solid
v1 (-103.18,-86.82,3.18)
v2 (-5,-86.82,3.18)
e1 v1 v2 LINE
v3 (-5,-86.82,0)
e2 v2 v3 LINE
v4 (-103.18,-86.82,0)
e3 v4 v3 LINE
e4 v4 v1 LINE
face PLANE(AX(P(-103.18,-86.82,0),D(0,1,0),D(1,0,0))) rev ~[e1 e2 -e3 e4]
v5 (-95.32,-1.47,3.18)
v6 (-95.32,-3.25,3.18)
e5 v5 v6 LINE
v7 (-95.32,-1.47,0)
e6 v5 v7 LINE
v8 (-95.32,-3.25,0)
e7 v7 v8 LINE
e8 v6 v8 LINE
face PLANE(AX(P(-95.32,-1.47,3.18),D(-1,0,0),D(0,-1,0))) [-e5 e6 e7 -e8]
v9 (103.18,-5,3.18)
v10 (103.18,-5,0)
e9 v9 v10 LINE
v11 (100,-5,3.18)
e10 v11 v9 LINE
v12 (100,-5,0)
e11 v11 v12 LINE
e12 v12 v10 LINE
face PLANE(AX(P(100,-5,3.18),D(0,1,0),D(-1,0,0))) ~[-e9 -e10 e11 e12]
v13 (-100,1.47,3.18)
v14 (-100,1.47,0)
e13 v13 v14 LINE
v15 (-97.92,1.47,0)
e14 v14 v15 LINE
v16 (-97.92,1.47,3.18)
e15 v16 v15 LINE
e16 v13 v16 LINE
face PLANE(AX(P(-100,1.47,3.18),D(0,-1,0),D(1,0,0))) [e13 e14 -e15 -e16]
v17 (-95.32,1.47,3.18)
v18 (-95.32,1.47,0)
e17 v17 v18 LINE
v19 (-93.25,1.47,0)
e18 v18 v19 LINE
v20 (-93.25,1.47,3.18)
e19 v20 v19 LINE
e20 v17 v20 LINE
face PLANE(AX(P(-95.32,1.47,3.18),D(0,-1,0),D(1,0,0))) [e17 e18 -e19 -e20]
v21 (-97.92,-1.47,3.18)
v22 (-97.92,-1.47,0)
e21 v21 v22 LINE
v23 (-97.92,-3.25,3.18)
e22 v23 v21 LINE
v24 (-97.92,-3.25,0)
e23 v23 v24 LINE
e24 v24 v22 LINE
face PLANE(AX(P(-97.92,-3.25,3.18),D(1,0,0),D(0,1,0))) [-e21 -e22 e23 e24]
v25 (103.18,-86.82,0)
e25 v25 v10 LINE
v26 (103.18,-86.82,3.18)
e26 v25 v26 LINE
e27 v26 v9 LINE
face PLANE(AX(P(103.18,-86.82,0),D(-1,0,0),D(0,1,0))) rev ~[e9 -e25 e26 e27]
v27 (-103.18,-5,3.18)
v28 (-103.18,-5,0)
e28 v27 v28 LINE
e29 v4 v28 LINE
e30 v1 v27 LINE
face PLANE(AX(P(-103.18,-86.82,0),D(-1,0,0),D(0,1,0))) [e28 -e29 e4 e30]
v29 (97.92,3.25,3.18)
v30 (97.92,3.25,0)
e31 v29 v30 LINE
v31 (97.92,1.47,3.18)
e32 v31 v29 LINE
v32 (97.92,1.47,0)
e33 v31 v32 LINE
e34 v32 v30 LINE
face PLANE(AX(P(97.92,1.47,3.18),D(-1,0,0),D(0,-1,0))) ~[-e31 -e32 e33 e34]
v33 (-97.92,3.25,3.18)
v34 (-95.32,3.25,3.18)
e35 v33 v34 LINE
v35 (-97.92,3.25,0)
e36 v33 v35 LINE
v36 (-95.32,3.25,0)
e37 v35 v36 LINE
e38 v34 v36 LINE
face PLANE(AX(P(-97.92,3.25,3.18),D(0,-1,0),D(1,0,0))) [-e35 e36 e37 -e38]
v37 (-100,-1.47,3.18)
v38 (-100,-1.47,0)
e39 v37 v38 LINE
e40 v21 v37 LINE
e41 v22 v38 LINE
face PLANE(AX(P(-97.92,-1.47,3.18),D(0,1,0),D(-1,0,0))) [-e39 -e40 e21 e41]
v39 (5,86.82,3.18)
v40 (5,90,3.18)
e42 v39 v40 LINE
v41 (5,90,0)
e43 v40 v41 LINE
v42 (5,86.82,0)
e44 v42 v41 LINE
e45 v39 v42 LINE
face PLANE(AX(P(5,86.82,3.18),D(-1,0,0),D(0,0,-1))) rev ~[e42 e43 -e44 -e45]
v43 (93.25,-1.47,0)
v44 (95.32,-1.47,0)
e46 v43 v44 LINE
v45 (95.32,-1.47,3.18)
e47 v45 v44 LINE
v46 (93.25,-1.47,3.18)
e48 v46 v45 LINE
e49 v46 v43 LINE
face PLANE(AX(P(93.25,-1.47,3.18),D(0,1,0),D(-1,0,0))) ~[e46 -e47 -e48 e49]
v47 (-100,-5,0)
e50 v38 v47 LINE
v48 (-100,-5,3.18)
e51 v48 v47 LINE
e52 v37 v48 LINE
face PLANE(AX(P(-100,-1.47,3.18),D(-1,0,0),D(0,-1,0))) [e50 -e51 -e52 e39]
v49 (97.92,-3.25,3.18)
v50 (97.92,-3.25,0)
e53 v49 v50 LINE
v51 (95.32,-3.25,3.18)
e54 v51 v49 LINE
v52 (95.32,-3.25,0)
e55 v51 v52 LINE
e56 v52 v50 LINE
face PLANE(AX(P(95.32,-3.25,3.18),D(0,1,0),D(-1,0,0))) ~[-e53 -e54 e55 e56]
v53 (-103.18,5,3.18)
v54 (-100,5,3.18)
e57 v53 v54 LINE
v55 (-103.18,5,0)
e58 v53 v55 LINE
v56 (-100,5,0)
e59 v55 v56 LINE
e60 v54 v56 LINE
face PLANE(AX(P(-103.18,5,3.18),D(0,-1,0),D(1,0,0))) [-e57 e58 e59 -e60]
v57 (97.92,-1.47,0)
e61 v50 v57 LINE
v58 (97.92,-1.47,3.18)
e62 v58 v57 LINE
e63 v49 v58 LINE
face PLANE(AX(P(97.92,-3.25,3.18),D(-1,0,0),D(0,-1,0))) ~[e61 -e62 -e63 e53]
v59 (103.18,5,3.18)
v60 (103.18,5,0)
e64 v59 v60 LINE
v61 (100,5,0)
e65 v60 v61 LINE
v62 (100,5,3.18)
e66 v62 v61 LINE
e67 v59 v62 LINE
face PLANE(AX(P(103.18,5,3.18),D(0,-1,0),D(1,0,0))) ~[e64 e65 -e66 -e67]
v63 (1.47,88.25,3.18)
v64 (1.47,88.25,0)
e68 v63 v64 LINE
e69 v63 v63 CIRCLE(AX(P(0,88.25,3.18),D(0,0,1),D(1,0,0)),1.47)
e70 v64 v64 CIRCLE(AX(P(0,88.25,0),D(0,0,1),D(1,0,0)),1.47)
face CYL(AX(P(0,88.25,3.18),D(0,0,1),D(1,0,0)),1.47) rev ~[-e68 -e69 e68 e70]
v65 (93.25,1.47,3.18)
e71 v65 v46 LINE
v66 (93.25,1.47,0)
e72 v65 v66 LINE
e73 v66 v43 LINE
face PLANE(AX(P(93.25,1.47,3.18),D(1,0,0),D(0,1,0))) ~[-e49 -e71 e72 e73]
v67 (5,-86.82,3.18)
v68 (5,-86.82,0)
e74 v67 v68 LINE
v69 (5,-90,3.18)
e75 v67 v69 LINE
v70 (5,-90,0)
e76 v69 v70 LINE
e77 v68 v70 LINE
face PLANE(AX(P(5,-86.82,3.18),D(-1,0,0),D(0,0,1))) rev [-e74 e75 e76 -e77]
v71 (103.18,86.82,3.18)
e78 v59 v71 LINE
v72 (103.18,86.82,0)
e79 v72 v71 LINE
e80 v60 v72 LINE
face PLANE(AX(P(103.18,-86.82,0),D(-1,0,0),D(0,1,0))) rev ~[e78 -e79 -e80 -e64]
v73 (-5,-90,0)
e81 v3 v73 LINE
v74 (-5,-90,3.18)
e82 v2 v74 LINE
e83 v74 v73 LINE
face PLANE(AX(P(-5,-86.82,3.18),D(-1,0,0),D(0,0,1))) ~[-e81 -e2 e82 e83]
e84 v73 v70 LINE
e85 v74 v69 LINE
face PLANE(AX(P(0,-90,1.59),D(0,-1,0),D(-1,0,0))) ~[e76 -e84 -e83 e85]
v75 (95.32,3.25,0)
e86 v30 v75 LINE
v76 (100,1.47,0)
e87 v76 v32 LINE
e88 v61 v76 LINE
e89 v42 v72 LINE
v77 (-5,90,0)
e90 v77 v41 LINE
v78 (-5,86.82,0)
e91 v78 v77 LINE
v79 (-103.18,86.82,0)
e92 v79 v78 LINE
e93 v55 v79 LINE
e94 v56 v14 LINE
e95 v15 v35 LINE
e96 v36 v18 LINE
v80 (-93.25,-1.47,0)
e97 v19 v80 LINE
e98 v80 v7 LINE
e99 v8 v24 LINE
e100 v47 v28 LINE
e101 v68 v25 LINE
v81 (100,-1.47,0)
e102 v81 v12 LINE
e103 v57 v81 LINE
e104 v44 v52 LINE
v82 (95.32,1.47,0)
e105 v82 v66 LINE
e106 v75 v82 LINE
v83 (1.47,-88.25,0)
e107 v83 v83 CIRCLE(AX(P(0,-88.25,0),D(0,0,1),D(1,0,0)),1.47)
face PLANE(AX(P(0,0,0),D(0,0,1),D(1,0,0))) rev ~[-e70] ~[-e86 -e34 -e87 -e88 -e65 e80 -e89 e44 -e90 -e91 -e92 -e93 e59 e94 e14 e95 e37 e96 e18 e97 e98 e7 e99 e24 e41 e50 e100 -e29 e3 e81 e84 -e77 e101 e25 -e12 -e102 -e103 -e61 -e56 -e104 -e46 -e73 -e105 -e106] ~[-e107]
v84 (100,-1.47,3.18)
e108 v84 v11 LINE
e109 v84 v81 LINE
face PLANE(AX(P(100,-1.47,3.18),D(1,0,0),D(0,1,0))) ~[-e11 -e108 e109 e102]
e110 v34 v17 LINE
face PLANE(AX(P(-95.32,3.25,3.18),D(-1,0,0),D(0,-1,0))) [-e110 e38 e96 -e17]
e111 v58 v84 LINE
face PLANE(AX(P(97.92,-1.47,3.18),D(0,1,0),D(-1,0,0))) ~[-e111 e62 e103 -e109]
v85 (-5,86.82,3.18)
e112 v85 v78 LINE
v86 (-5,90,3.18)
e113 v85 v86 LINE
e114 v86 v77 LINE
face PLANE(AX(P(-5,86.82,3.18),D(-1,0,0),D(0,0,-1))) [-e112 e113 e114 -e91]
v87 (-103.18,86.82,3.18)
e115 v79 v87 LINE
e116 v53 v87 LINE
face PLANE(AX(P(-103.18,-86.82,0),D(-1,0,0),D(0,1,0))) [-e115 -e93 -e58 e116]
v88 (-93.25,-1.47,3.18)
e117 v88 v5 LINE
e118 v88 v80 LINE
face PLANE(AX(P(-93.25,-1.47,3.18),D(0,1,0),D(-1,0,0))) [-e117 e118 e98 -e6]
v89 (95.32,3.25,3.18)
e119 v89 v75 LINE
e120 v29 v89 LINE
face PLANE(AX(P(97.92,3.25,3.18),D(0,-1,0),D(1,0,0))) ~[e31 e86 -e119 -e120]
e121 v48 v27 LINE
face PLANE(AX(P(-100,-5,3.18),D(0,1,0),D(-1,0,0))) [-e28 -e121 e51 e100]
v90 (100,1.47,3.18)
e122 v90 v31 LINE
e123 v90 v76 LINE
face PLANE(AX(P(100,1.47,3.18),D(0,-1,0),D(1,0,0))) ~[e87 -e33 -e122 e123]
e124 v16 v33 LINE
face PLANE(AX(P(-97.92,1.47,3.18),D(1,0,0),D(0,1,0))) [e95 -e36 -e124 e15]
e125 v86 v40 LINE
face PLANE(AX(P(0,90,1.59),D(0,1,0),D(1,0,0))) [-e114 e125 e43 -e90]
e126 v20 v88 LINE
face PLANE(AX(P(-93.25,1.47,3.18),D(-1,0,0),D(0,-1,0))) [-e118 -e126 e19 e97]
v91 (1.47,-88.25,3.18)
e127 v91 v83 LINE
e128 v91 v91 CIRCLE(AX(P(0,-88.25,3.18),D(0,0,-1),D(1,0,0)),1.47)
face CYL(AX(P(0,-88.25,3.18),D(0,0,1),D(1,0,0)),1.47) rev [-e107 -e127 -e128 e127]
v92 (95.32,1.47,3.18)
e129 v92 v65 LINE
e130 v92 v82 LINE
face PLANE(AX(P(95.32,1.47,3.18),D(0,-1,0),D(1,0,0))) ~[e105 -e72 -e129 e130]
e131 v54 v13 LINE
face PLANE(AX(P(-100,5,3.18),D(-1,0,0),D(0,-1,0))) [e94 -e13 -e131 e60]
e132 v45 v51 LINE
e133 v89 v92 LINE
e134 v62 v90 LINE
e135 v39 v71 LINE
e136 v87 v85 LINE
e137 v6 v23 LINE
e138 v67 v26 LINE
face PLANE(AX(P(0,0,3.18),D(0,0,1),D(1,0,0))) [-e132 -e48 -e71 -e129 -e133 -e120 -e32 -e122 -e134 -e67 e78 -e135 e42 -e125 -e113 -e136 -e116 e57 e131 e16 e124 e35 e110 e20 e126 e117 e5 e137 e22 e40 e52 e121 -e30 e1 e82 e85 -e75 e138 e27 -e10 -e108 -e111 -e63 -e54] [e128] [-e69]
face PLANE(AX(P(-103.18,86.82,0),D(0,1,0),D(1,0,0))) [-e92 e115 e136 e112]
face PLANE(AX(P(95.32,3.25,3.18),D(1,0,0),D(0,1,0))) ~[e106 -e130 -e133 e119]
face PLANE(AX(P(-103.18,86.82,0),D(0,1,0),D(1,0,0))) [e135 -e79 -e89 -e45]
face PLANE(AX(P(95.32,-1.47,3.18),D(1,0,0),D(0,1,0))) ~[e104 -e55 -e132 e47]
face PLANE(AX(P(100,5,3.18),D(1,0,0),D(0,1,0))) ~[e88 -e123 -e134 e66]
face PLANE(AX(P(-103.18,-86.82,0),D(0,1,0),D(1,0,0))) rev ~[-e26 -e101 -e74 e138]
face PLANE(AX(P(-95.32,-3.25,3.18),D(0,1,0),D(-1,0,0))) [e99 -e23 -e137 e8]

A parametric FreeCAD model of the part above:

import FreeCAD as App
import Part
import Sketcher
from FreeCAD import Vector

doc = App.newDocument("Part")
body = doc.addObject("PartDesign::Body", "Body")

# Sketch on XY plane
sketch1 = body.newObject("Sketcher::SketchObject", "Sketch")
sketch1.AttachmentSupport = (doc.getObject("XY_Plane"), [""])
sketch1.MapMode = "FlatFace"
sketch1.addGeometry(Part.LineSegment(Vector(-103.18, 86.82, 0), Vector(-103.18, -86.82, 0)), False)
sketch1.addGeometry(Part.LineSegment(Vector(-103.18, -86.82, 0), Vector(103.18, -86.82, 0)), False)
sketch1.addGeometry(Part.LineSegment(Vector(103.18, -86.82, 0), Vector(103.18, 86.82, 0)), False)
sketch1.addGeometry(Part.LineSegment(Vector(103.18, 86.82, 0), Vector(-103.18, 86.82, 0)), False)
sketch1.addConstraint(Sketcher.Constraint("Coincident", 0, 2, 1, 1))
sketch1.addConstraint(Sketcher.Constraint("Coincident", 1, 2, 2, 1))
sketch1.addConstraint(Sketcher.Constraint("Coincident", 2, 2, 3, 1))
sketch1.addConstraint(Sketcher.Constraint("Coincident", 3, 2, 0, 1))
sketch1.addConstraint(Sketcher.Constraint("Vertical", 0))
sketch1.addConstraint(Sketcher.Constraint("Horizontal", 1))
sketch1.addConstraint(Sketcher.Constraint("Vertical", 2))
sketch1.addConstraint(Sketcher.Constraint("Horizontal", 3))
sketch1.addConstraint(Sketcher.Constraint("Symmetric", 0, 2, 2, 2, -1, 1))
sketch1.addConstraint(Sketcher.Constraint("DistanceX", 1, 1, 1, 2, 206.36))
sketch1.addConstraint(Sketcher.Constraint("DistanceY", 0, 2, 0, 1, 173.64))
pad1 = body.newObject("PartDesign::Pad", "Pad")
pad1.Profile = sketch1
pad1.Length = 3.18

# Sketch on XY plane
sketch2 = body.newObject("Sketcher::SketchObject", "Sketch001")
sketch2.AttachmentSupport = (doc.getObject("XY_Plane"), [""])
sketch2.MapMode = "FlatFace"
sketch2.AttachmentOffset = App.Placement(Vector(0, 0, 3.18), App.Rotation())
sketch2.addGeometry(Part.LineSegment(Vector(-95.32, -3.25, 0), Vector(-95.32, -1.47, 0)), False)
sketch2.addGeometry(Part.LineSegment(Vector(-95.32, -1.47, 0), Vector(-93.25, -1.47, 0)), False)
sketch2.addGeometry(Part.LineSegment(Vector(-93.25, -1.47, 0), Vector(-93.25, 1.47, 0)), False)
sketch2.addGeometry(Part.LineSegment(Vector(-93.25, 1.47, 0), Vector(-95.32, 1.47, 0)), False)
sketch2.addGeometry(Part.LineSegment(Vector(-95.32, 1.47, 0), Vector(-95.32, 3.25, 0)), False)
sketch2.addGeometry(Part.LineSegment(Vector(-95.32, 3.25, 0), Vector(-97.92, 3.25, 0)), False)
sketch2.addGeometry(Part.LineSegment(Vector(-97.92, 3.25, 0), Vector(-97.92, 1.47, 0)), False)
sketch2.addGeometry(Part.LineSegment(Vector(-97.92, 1.47, 0), Vector(-100, 1.47, 0)), False)
sketch2.addGeometry(Part.LineSegment(Vector(-100, 1.47, 0), Vector(-100, 5, 0)), False)
sketch2.addGeometry(Part.LineSegment(Vector(-100, 5, 0), Vector(-103.18, 5, 0)), False)
sketch2.addGeometry(Part.LineSegment(Vector(-103.18, 5, 0), Vector(-103.18, -5, 0)), False)
sketch2.addGeometry(Part.LineSegment(Vector(-103.18, -5, 0), Vector(-100, -5, 0)), False)
sketch2.addGeometry(Part.LineSegment(Vector(-100, -5, 0), Vector(-100, -1.47, 0)), False)
sketch2.addGeometry(Part.LineSegment(Vector(-100, -1.47, 0), Vector(-97.92, -1.47, 0)), False)
sketch2.addGeometry(Part.LineSegment(Vector(-97.92, -1.47, 0), Vector(-97.92, -3.25, 0)), False)
sketch2.addGeometry(Part.LineSegment(Vector(-97.92, -3.25, 0), Vector(-95.32, -3.25, 0)), False)
sketch2.addConstraint(Sketcher.Constraint("Coincident", 0, 2, 1, 1))
sketch2.addConstraint(Sketcher.Constraint("Coincident", 1, 2, 2, 1))
sketch2.addConstraint(Sketcher.Constraint("Coincident", 2, 2, 3, 1))
sketch2.addConstraint(Sketcher.Constraint("Coincident", 3, 2, 4, 1))
sketch2.addConstraint(Sketcher.Constraint("Coincident", 4, 2, 5, 1))
sketch2.addConstraint(Sketcher.Constraint("Coincident", 5, 2, 6, 1))
sketch2.addConstraint(Sketcher.Constraint("Coincident", 6, 2, 7, 1))
sketch2.addConstraint(Sketcher.Constraint("Coincident", 7, 2, 8, 1))
sketch2.addConstraint(Sketcher.Constraint("Coincident", 8, 2, 9, 1))
sketch2.addConstraint(Sketcher.Constraint("Coincident", 9, 2, 10, 1))
sketch2.addConstraint(Sketcher.Constraint("Coincident", 10, 2, 11, 1))
sketch2.addConstraint(Sketcher.Constraint("Coincident", 11, 2, 12, 1))
sketch2.addConstraint(Sketcher.Constraint("Coincident", 12, 2, 13, 1))
sketch2.addConstraint(Sketcher.Constraint("Coincident", 13, 2, 14, 1))
sketch2.addConstraint(Sketcher.Constraint("Coincident", 14, 2, 15, 1))
sketch2.addConstraint(Sketcher.Constraint("Coincident", 15, 2, 0, 1))
sketch2.addConstraint(Sketcher.Constraint("Vertical", 0))
sketch2.addConstraint(Sketcher.Constraint("Horizontal", 1))
sketch2.addConstraint(Sketcher.Constraint("Vertical", 2))
sketch2.addConstraint(Sketcher.Constraint("Horizontal", 3))
sketch2.addConstraint(Sketcher.Constraint("Vertical", 4))
sketch2.addConstraint(Sketcher.Constraint("Horizontal", 5))
sketch2.addConstraint(Sketcher.Constraint("Vertical", 6))
sketch2.addConstraint(Sketcher.Constraint("Horizontal", 7))
sketch2.addConstraint(Sketcher.Constraint("Vertical", 8))
sketch2.addConstraint(Sketcher.Constraint("Horizontal", 9))
sketch2.addConstraint(Sketcher.Constraint("Vertical", 10))
sketch2.addConstraint(Sketcher.Constraint("Horizontal", 11))
sketch2.addConstraint(Sketcher.Constraint("Vertical", 12))
sketch2.addConstraint(Sketcher.Constraint("Horizontal", 13))
sketch2.addConstraint(Sketcher.Constraint("Vertical", 14))
sketch2.addConstraint(Sketcher.Constraint("Horizontal", 15))
sketch2.addConstraint(Sketcher.Constraint("Symmetric", 0, 2, 3, 2, -1))
sketch2.addConstraint(Sketcher.Constraint("Symmetric", 8, 2, 11, 2, -1))
sketch2.addConstraint(Sketcher.Constraint("Symmetric", 6, 2, 13, 2, -1))
sketch2.addConstraint(Sketcher.Constraint("Horizontal", 3, 2, 6, 2))
sketch2.addConstraint(Sketcher.Constraint("Equal", 0, 4))
sketch2.addConstraint(Sketcher.Constraint("DistanceY", 10, 2, 10, 1, 10.0))
sketch2.addConstraint(Sketcher.Constraint("DistanceX", 5, 2, 5, 1, 2.6))
sketch2.addConstraint(Sketcher.Constraint("DistanceX", 7, 2, -1, 1, 100.0))
sketch2.addConstraint(Sketcher.Constraint("DistanceX", 1, 1, 1, 2, 2.07))
sketch2.addConstraint(Sketcher.Constraint("DistanceX", 7, 2, 7, 1, 2.08))
sketch2.addConstraint(Sketcher.Constraint("DistanceX", 9, 2, 9, 1, 3.18))
sketch2.addConstraint(Sketcher.Constraint("DistanceY", 0, 1, 0, 2, 1.78))
sketch2.addConstraint(Sketcher.Constraint("DistanceY", 2, 1, 2, 2, 2.94))
pocket1 = body.newObject("PartDesign::Pocket", "Pocket")
pocket1.Profile = sketch2
pocket1.Type = "ThroughAll"

# Sketch on XZ plane
sketch3 = body.newObject("Sketcher::SketchObject", "Sketch002")
sketch3.AttachmentSupport = (doc.getObject("XZ_Plane"), [""])
sketch3.MapMode = "FlatFace"
sketch3.AttachmentOffset = App.Placement(Vector(0, 0, -86.82), App.Rotation())
sketch3.addGeometry(Part.LineSegment(Vector(-5, 0, 0), Vector(-5, 3.18, 0)), False)
sketch3.addGeometry(Part.LineSegment(Vector(-5, 3.18, 0), Vector(5, 3.18, 0)), False)
sketch3.addGeometry(Part.LineSegment(Vector(5, 3.18, 0), Vector(5, 0, 0)), False)
sketch3.addGeometry(Part.LineSegment(Vector(5, 0, 0), Vector(-5, 0, 0)), False)
sketch3.addConstraint(Sketcher.Constraint("Coincident", 0, 2, 1, 1))
sketch3.addConstraint(Sketcher.Constraint("Coincident", 1, 2, 2, 1))
sketch3.addConstraint(Sketcher.Constraint("Coincident", 2, 2, 3, 1))
sketch3.addConstraint(Sketcher.Constraint("Coincident", 3, 2, 0, 1))
sketch3.addConstraint(Sketcher.Constraint("Vertical", 0))
sketch3.addConstraint(Sketcher.Constraint("Horizontal", 1))
sketch3.addConstraint(Sketcher.Constraint("Vertical", 2))
sketch3.addConstraint(Sketcher.Constraint("Horizontal", 3))
sketch3.addConstraint(Sketcher.Constraint("Symmetric", 2, 2, 3, 2, -1, 1))
sketch3.addConstraint(Sketcher.Constraint("DistanceX", 1, 1, 1, 2, 10.0))
sketch3.addConstraint(Sketcher.Constraint("DistanceY", 0, 1, 0, 2, 3.18))
pad2 = body.newObject("PartDesign::Pad", "Pad001")
pad2.Profile = sketch3
pad2.Length = 3.18
pad2.Reversed = True

# Sketch on XY plane
sketch4 = body.newObject("Sketcher::SketchObject", "Sketch003")
sketch4.AttachmentSupport = (doc.getObject("XY_Plane"), [""])
sketch4.MapMode = "FlatFace"
sketch4.AttachmentOffset = App.Placement(Vector(0, 0, 3.18), App.Rotation())
sketch4.addGeometry(Part.Circle(Vector(0, 88.25, 0), Vector(0, 0, 1), 1.47), False)
sketch4.addConstraint(Sketcher.Constraint("PointOnObject", 0, 3, -2))
sketch4.addConstraint(Sketcher.Constraint("Diameter", 0, 2.94))
sketch4.addConstraint(Sketcher.Constraint("DistanceY", -1, 1, 0, 3, 88.25))
pocket2 = body.newObject("PartDesign::Pocket", "Pocket001")
pocket2.Profile = sketch4
pocket2.Type = "ThroughAll"
doc.recompute()

mirrored = body.newObject("PartDesign::Mirrored", "Mirrored")
mirrored.Originals = [pocket1]
mirrored.MirrorPlane = (doc.getObject("YZ_Plane"), [""])
body.Tip = mirrored
doc.recompute()

mirrored2 = body.newObject("PartDesign::Mirrored", "Mirrored001")
mirrored2.Originals = [pad2, pocket2]
mirrored2.MirrorPlane = (doc.getObject("XZ_Plane"), [""])
body.Tip = mirrored2

doc.recompute()
